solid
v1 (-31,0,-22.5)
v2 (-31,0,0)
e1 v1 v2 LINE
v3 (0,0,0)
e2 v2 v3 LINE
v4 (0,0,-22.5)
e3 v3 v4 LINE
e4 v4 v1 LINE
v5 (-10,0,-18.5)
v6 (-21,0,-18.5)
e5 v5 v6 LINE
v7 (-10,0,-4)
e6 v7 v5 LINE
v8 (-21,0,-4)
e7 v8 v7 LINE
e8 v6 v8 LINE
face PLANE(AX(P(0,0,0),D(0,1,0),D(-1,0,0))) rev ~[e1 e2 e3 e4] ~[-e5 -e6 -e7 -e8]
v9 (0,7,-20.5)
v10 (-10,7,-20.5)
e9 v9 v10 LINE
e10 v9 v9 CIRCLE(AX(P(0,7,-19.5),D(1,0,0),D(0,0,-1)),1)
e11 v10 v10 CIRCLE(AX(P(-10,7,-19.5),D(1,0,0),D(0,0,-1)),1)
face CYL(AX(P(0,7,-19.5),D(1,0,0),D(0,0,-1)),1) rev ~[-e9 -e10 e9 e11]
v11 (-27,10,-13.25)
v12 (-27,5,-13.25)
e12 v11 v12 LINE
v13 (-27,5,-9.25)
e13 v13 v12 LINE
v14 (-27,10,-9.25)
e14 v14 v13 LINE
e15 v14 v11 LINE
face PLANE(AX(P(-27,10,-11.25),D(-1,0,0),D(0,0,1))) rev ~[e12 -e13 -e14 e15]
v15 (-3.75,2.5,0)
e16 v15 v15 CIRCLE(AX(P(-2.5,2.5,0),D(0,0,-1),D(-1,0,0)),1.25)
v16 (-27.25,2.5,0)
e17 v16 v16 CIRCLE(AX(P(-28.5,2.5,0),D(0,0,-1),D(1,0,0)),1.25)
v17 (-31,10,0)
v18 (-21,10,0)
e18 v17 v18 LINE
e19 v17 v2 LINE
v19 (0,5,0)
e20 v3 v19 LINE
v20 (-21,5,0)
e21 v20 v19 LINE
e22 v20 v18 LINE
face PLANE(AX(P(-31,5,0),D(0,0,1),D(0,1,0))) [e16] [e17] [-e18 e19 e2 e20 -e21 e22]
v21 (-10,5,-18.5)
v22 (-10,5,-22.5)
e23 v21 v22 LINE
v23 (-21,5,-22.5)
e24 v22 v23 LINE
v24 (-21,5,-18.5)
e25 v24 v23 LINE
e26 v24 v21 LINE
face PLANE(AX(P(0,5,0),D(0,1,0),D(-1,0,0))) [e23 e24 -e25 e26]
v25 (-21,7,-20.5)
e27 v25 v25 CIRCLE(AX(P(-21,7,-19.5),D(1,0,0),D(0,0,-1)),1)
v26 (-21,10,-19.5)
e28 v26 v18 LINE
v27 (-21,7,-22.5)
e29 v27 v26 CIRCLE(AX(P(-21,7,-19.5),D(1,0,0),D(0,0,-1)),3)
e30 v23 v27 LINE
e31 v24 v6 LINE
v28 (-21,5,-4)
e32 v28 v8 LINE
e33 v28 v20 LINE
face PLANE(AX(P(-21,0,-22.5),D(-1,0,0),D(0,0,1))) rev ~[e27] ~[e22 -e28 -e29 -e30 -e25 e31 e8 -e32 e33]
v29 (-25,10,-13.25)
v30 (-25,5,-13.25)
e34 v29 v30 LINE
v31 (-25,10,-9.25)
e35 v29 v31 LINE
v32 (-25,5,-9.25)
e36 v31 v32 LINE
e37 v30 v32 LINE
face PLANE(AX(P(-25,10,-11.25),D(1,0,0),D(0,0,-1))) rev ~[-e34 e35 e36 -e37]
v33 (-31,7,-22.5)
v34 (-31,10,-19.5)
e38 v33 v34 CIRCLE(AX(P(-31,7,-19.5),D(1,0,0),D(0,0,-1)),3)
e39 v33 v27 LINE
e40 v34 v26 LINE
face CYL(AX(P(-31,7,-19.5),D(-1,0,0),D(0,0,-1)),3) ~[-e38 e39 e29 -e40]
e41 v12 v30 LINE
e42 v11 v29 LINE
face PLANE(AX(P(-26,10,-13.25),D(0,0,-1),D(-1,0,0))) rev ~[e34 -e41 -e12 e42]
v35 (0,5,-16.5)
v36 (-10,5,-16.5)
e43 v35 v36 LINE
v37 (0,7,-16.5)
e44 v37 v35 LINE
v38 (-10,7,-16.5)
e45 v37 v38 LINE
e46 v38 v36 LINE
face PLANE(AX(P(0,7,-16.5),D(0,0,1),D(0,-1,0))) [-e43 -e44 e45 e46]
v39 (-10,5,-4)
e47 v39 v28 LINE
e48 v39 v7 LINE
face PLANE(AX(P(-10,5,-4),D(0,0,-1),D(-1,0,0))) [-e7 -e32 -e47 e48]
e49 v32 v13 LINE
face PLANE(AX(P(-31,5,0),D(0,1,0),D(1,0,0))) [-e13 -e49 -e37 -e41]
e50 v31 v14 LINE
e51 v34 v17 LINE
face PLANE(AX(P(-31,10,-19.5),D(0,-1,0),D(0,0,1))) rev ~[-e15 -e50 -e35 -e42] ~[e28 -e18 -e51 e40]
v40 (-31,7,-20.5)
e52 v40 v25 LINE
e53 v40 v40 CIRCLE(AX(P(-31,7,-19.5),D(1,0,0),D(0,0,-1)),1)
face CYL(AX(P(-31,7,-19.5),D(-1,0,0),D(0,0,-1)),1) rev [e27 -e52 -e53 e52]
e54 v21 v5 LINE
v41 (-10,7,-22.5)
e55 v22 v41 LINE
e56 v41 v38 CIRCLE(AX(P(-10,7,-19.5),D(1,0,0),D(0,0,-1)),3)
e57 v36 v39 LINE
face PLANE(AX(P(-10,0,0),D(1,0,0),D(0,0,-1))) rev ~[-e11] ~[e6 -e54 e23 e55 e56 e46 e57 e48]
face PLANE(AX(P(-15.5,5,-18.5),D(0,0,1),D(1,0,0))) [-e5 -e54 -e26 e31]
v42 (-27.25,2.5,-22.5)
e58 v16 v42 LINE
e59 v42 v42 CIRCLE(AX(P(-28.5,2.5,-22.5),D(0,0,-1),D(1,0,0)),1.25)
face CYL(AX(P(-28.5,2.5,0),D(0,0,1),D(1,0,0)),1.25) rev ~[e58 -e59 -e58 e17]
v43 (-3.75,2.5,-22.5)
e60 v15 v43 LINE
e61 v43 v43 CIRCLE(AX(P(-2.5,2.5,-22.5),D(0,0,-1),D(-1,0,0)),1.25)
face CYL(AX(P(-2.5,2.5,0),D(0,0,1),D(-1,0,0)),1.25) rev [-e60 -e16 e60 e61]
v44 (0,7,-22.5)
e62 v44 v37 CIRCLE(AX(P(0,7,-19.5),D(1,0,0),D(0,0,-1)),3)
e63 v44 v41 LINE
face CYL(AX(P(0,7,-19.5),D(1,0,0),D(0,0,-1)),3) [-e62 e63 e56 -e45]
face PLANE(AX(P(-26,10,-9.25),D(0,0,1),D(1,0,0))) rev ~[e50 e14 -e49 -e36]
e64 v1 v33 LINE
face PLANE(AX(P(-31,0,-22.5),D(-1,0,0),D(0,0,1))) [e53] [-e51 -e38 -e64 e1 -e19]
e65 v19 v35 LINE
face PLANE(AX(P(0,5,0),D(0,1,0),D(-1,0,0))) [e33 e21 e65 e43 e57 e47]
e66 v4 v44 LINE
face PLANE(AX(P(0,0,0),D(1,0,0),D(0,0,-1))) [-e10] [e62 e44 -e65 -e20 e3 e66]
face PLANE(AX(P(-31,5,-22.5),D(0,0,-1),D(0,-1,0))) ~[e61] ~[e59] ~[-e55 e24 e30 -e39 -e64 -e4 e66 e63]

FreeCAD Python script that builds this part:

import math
import FreeCAD as App
import Part
import Sketcher
Q = App.Units.Quantity

doc = App.newDocument("Part")
body = doc.addObject("PartDesign::Body", "Body")

# Sketch on XZ plane
sketch1 = body.newObject("Sketcher::SketchObject", "Sketch")
sketch1.AttachmentSupport = (doc.getObject("XZ_Plane"), [""])
sketch1.MapMode = "FlatFace"
sketch1.addGeometry(Part.LineSegment(App.Vector(-31, 0, 0), App.Vector(0, 0, 0)), False)
sketch1.addGeometry(Part.LineSegment(App.Vector(0, 0, 0), App.Vector(0, -22, 0)), False)
sketch1.addGeometry(Part.LineSegment(App.Vector(0, -22, 0), App.Vector(-31, -22, 0)), False)
sketch1.addGeometry(Part.LineSegment(App.Vector(-31, -22, 0), App.Vector(-31, 0, 0)), False)
sketch1.addConstraint(Sketcher.Constraint("Coincident", 0, 2, 1, 1))
sketch1.addConstraint(Sketcher.Constraint("Coincident", 1, 2, 2, 1))
sketch1.addConstraint(Sketcher.Constraint("Coincident", 2, 2, 3, 1))
sketch1.addConstraint(Sketcher.Constraint("Coincident", 3, 2, 0, 1))
sketch1.addConstraint(Sketcher.Constraint("Horizontal", 0))
sketch1.addConstraint(Sketcher.Constraint("Vertical", 1))
sketch1.addConstraint(Sketcher.Constraint("Horizontal", 2))
sketch1.addConstraint(Sketcher.Constraint("Vertical", 3))
sketch1.addConstraint(Sketcher.Constraint("Coincident", 0, 2, -1, 1))
sketch1.addConstraint(Sketcher.Constraint("DistanceX", 0, 1, 0, 2, Q("31 mm")))
sketch1.addConstraint(Sketcher.Constraint("DistanceY", 1, 2, 1, 1, Q("22.5 mm")))
pad1 = body.newObject("PartDesign::Pad", "Pad")
pad1.Profile = sketch1
pad1.Length = 5
pad1.Reversed = True

# Sketch on XY plane
sketch2 = body.newObject("Sketcher::SketchObject", "Sketch001")
sketch2.AttachmentSupport = (doc.getObject("XY_Plane"), [""])
sketch2.MapMode = "FlatFace"
sketch2.addGeometry(Part.Circle(App.Vector(-28.5, 2.5, 0), App.Vector(0, 0, 1), 1.2), False)
sketch2.addConstraint(Sketcher.Constraint("Diameter", 0, Q("2.5 mm")))
sketch2.addConstraint(Sketcher.Constraint("DistanceY", -1, 1, 0, 3, Q("2.5 mm")))
sketch2.addConstraint(Sketcher.Constraint("DistanceX", 0, 3, -1, 1, Q("28.5 mm")))
pocket1 = body.newObject("PartDesign::Pocket", "Pocket")
pocket1.Profile = sketch2
pocket1.Type = "UpToFirst"
doc.recompute()

datumplane = body.newObject("PartDesign::Plane", "DatumPlane")
datumplane.AttachmentSupport = (doc.getObject("YZ_Plane"), [""])
datumplane.MapMode = "FlatFace"
datumplane.AttachmentOffset = App.Placement(App.Vector(0, 0, -15.5), App.Rotation())
mirrored = body.newObject("PartDesign::Mirrored", "Mirrored")
mirrored.Originals = [pocket1]
mirrored.MirrorPlane = (datumplane, [""])
body.Tip = mirrored

# Sketch on XZ plane
sketch3 = body.newObject("Sketcher::SketchObject", "Sketch002")
sketch3.AttachmentSupport = (doc.getObject("XZ_Plane"), [""])
sketch3.MapMode = "FlatFace"
sketch3.AttachmentOffset = App.Placement(App.Vector(0, 0, -5), App.Rotation())
sketch3.addGeometry(Part.LineSegment(App.Vector(-21, -4, 0), App.Vector(-10, -4, 0)), False)
sketch3.addGeometry(Part.LineSegment(App.Vector(-10, -4, 0), App.Vector(-10, -18, 0)), False)
sketch3.addGeometry(Part.LineSegment(App.Vector(-10, -18, 0), App.Vector(-21, -18, 0)), False)
sketch3.addGeometry(Part.LineSegment(App.Vector(-21, -18, 0), App.Vector(-21, -4, 0)), False)
sketch3.addConstraint(Sketcher.Constraint("Coincident", 0, 2, 1, 1))
sketch3.addConstraint(Sketcher.Constraint("Coincident", 1, 2, 2, 1))
sketch3.addConstraint(Sketcher.Constraint("Coincident", 2, 2, 3, 1))
sketch3.addConstraint(Sketcher.Constraint("Coincident", 3, 2, 0, 1))
sketch3.addConstraint(Sketcher.Constraint("Horizontal", 0))
sketch3.addConstraint(Sketcher.Constraint("Vertical", 1))
sketch3.addConstraint(Sketcher.Constraint("Horizontal", 2))
sketch3.addConstraint(Sketcher.Constraint("Vertical", 3))
sketch3.addConstraint(Sketcher.Constraint("DistanceX", 0, 1, 0, 2, Q("11 mm")))
sketch3.addConstraint(Sketcher.Constraint("DistanceY", 0, 2, -1, 1, Q("4 mm")))
sketch3.addConstraint(Sketcher.Constraint("DistanceY", 1, 2, 1, 1, Q("14.5 mm")))
sketch3.addConstraint(Sketcher.Constraint("DistanceX", 0, 2, -1, 1, Q("10 mm")))
pocket2 = body.newObject("PartDesign::Pocket", "Pocket001")
pocket2.Profile = sketch3
pocket2.Type = "UpToFirst"
pocket2.Reversed = True

# Sketch on YZ plane
sketch4 = body.newObject("Sketcher::SketchObject", "Sketch003")
sketch4.AttachmentSupport = (doc.getObject("YZ_Plane"), [""])
sketch4.MapMode = "FlatFace"
sketch4.addGeometry(Part.LineSegment(App.Vector(5, -16.5, 0), App.Vector(5, -22.5, 0)), False)
sketch4.addGeometry(Part.LineSegment(App.Vector(5, -22.5, 0), App.Vector(7, -22.5, 0)), False)
sketch4.addGeometry(Part.ArcOfCircle(Part.Circle(App.Vector(7, -19.5, 0), App.Vector(0, 0, 1), 3), math.radians(-90), math.radians(90)), False)
sketch4.addGeometry(Part.LineSegment(App.Vector(7, -16.5, 0), App.Vector(5, -16.5, 0)), False)
sketch4.addGeometry(Part.Circle(App.Vector(7, -19.5, 0), App.Vector(0, 0, 1), 1), False)
sketch4.addConstraint(Sketcher.Constraint("Coincident", 0, 2, 1, 1))
sketch4.addConstraint(Sketcher.Constraint("Tangent", 1, 2, 2, 1))
sketch4.addConstraint(Sketcher.Constraint("Tangent", 2, 2, 3, 1))
sketch4.addConstraint(Sketcher.Constraint("Coincident", 3, 2, 0, 1))
sketch4.addConstraint(Sketcher.Constraint("Vertical", 0))
sketch4.addConstraint(Sketcher.Constraint("Horizontal", 1))
sketch4.addConstraint(Sketcher.Constraint("Horizontal", 3))
sketch4.addConstraint(Sketcher.Constraint("Coincident", 4, 3, 2, 3))
sketch4.addConstraint(Sketcher.Constraint("Diameter", 4, Q("2 mm")))
sketch4.addConstraint(Sketcher.Constraint("Radius", 2, Q("3 mm")))
sketch4.addConstraint(Sketcher.Constraint("DistanceX", 1, 1, 1, 2, Q("2 mm")))
sketch4.addConstraint(Sketcher.Constraint("DistanceX", -1, 1, 2, 3, Q("7 mm")))
sketch4.addConstraint(Sketcher.Constraint("DistanceY", 2, 3, -1, 1, Q("19.5 mm")))
pad2 = body.newObject("PartDesign::Pad", "Pad001")
pad2.Profile = sketch4
pad2.Length = 10
pad2.Reversed = True
doc.recompute()

datumplane2 = body.newObject("PartDesign::Plane", "DatumPlane001")
datumplane2.AttachmentSupport = (doc.getObject("YZ_Plane"), [""])
datumplane2.MapMode = "FlatFace"
datumplane2.AttachmentOffset = App.Placement(App.Vector(0, 0, -15.5), App.Rotation())
mirrored2 = body.newObject("PartDesign::Mirrored", "Mirrored001")
mirrored2.Originals = [pad2]
mirrored2.MirrorPlane = (datumplane2, [""])
body.Tip = mirrored2

# Sketch on YZ plane
sketch5 = body.newObject("Sketcher::SketchObject", "Sketch004")
sketch5.AttachmentSupport = (doc.getObject("YZ_Plane"), [""])
sketch5.MapMode = "FlatFace"
sketch5.AttachmentOffset = App.Placement(App.Vector(0, 0, -31), App.Rotation())
sketch5.addGeometry(Part.LineSegment(App.Vector(5, -16.5, 0), App.Vector(5, 0, 0)), False)
sketch5.addGeometry(Part.LineSegment(App.Vector(5, 0, 0), App.Vector(10, 0, 0)), False)
sketch5.addGeometry(Part.LineSegment(App.Vector(10, 0, 0), App.Vector(10, -19.5, 0)), False)
sketch5.addGeometry(Part.ArcOfCircle(Part.Circle(App.Vector(7, -19.5, 0), App.Vector(0, 0, 1), 3), math.radians(0), math.radians(90)), False)
sketch5.addGeometry(Part.LineSegment(App.Vector(7, -16.5, 0), App.Vector(5, -16.5, 0)), False)
sketch5.addConstraint(Sketcher.Constraint("Coincident", 0, 2, 1, 1))
sketch5.addConstraint(Sketcher.Constraint("Coincident", 1, 2, 2, 1))
sketch5.addConstraint(Sketcher.Constraint("Tangent", 2, 2, 3, 1))
sketch5.addConstraint(Sketcher.Constraint("Tangent", 3, 2, 4, 1))
sketch5.addConstraint(Sketcher.Constraint("Coincident", 4, 2, 0, 1))
sketch5.addConstraint(Sketcher.Constraint("Vertical", 0))
sketch5.addConstraint(Sketcher.Constraint("Horizontal", 1))
sketch5.addConstraint(Sketcher.Constraint("Vertical", 2))
sketch5.addConstraint(Sketcher.Constraint("Horizontal", 4))
sketch5.addConstraint(Sketcher.Constraint("PointOnObject", 0, 2, -1))
sketch5.addConstraint(Sketcher.Constraint("Radius", 3, Q("3 mm")))
sketch5.addConstraint(Sketcher.Constraint("DistanceX", 1, 1, 1, 2, Q("5 mm")))
sketch5.addConstraint(Sketcher.Constraint("DistanceY", 0, 1, 0, 2, Q("16.5 mm")))
sketch5.addConstraint(Sketcher.Constraint("DistanceX", -1, 1, 3, 3, Q("7 mm")))
pad3 = body.newObject("PartDesign::Pad", "Pad002")
pad3.Profile = sketch5
pad3.Length = 10

# Sketch on XZ plane
sketch6 = body.newObject("Sketcher::SketchObject", "Sketch005")
sketch6.AttachmentSupport = (doc.getObject("XZ_Plane"), [""])
sketch6.MapMode = "FlatFace"
sketch6.AttachmentOffset = App.Placement(App.Vector(0, 0, -10), App.Rotation())
sketch6.addGeometry(Part.LineSegment(App.Vector(-25, -9.2, 0), App.Vector(-25, -13.2, 0)), False)
sketch6.addGeometry(Part.LineSegment(App.Vector(-25, -13.2, 0), App.Vector(-27, -13.2, 0)), False)
sketch6.addGeometry(Part.LineSegment(App.Vector(-27, -13.2, 0), App.Vector(-27, -9.2, 0)), False)
sketch6.addGeometry(Part.LineSegment(App.Vector(-27, -9.2, 0), App.Vector(-25, -9.2, 0)), False)
sketch6.addConstraint(Sketcher.Constraint("Coincident", 0, 2, 1, 1))
sketch6.addConstraint(Sketcher.Constraint("Coincident", 1, 2, 2, 1))
sketch6.addConstraint(Sketcher.Constraint("Coincident", 2, 2, 3, 1))
sketch6.addConstraint(Sketcher.Constraint("Coincident", 3, 2, 0, 1))
sketch6.addConstraint(Sketcher.Constraint("Vertical", 0))
sketch6.addConstraint(Sketcher.Constraint("Horizontal", 1))
sketch6.addConstraint(Sketcher.Constraint("Vertical", 2))
sketch6.addConstraint(Sketcher.Constraint("Horizontal", 3))
sketch6.addConstraint(Sketcher.Constraint("DistanceX", 1, 2, 1, 1, Q("2 mm")))
sketch6.addConstraint(Sketcher.Constraint("DistanceY", 0, 2, 0, 1, Q("4 mm")))
sketch6.addConstraint(Sketcher.Constraint("DistanceX", 0, 2, -1, 1, Q("25 mm")))
sketch6.addConstraint(Sketcher.Constraint("DistanceY", 0, 2, -1, 1, Q("13.25 mm")))
pocket3 = body.newObject("PartDesign::Pocket", "Pocket002")
pocket3.Profile = sketch6
pocket3.Length = 5
pocket3.Reversed = True

doc.recompute()
